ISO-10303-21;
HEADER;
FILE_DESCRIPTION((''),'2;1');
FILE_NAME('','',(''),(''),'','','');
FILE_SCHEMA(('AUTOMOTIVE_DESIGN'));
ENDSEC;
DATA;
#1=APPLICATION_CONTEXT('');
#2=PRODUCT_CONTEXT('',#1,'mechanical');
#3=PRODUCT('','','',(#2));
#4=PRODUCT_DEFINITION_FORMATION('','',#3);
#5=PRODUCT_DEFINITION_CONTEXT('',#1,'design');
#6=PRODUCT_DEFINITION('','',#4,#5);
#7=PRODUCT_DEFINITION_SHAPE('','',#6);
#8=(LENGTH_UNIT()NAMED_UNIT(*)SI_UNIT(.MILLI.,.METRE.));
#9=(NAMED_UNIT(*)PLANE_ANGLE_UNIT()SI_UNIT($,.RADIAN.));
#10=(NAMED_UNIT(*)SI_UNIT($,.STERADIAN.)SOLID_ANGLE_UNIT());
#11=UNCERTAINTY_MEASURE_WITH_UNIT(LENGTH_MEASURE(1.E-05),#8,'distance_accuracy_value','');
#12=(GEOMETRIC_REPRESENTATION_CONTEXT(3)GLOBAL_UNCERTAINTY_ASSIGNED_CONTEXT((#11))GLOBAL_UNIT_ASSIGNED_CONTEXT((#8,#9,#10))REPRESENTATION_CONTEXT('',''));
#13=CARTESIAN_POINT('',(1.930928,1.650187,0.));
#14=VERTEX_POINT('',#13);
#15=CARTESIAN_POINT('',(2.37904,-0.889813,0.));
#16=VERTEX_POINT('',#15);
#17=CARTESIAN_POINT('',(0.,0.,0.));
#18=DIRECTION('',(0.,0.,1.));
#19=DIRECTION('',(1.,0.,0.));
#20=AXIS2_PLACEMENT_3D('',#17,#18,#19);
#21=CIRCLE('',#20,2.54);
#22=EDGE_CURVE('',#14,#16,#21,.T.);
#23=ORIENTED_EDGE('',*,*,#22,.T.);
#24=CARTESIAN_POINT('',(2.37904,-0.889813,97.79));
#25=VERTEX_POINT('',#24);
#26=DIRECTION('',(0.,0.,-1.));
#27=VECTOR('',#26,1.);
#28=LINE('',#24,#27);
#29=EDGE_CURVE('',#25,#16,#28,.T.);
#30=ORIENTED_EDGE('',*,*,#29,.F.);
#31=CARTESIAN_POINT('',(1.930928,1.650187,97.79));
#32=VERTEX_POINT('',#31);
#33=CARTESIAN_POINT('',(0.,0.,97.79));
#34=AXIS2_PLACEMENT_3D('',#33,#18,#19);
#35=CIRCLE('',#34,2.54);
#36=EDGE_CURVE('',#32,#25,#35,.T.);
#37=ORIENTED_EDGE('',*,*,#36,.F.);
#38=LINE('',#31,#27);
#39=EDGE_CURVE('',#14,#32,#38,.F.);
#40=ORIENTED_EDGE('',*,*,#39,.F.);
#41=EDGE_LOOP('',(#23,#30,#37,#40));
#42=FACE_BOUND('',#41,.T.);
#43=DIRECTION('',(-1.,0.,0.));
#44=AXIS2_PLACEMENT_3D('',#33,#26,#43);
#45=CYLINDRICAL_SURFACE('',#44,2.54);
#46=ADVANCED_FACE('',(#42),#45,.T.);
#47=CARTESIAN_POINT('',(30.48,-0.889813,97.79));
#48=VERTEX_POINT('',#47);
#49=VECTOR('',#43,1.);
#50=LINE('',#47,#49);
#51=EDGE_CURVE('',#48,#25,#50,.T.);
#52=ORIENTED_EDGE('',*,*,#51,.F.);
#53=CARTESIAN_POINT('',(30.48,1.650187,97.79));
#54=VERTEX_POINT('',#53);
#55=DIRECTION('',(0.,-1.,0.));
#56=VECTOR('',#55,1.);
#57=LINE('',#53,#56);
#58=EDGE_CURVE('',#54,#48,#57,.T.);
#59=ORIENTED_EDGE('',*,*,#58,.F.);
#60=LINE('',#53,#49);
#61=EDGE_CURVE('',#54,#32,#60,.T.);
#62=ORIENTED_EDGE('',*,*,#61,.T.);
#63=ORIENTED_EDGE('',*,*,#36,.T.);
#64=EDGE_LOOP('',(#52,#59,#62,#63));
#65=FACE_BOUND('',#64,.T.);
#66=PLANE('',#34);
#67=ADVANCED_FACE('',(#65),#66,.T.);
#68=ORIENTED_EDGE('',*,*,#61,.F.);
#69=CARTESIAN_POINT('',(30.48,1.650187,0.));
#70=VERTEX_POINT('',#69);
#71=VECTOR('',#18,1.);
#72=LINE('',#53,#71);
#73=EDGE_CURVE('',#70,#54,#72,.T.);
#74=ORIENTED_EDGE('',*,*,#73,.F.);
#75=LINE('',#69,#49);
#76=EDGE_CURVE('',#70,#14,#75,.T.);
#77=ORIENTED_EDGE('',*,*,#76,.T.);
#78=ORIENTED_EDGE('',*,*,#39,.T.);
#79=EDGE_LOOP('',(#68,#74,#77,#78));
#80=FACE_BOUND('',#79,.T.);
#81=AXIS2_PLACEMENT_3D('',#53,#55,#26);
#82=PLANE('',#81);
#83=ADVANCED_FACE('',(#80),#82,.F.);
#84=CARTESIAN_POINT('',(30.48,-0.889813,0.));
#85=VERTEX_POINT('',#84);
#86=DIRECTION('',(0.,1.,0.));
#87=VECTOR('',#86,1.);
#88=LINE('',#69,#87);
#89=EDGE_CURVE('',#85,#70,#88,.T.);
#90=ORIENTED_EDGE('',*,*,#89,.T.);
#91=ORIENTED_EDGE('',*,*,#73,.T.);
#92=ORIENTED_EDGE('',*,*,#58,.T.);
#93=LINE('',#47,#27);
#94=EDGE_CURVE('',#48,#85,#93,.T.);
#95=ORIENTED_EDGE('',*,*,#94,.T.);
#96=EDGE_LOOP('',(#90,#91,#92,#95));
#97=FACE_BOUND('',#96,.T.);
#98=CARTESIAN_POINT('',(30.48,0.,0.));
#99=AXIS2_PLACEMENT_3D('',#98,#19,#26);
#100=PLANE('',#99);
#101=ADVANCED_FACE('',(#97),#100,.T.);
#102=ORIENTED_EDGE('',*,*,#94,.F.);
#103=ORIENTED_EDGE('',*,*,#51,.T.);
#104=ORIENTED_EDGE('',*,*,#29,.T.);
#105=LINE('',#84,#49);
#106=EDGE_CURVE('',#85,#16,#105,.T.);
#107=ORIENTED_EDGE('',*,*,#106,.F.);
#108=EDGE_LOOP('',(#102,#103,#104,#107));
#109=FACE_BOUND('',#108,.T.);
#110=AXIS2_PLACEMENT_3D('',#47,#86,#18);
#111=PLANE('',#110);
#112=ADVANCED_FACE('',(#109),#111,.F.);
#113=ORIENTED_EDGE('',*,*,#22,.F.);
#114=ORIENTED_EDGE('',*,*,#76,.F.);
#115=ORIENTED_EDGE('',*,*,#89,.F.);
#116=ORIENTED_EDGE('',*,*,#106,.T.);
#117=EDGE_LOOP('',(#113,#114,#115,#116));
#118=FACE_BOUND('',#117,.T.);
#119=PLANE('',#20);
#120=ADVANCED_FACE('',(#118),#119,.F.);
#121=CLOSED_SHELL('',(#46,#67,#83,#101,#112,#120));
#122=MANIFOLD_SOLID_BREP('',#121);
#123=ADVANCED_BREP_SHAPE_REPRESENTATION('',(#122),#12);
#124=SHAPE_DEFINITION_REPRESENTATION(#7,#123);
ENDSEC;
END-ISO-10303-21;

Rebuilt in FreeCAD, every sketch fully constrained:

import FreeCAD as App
import Part
import Sketcher
from FreeCAD import Vector
Q = App.Units.Quantity

doc = App.newDocument("Part")
params = doc.addObject("Spreadsheet::Sheet", "Params")
for row, (alias, value) in enumerate([
    ("sketch1_diameter", "0.2 in"),
    ("pad1_length", "3.85 in"),
    ("sketch2_width", "0.1 in"),
    ("sketch2_height", "3.85 in"),
    ("pad2_length", "1.2 in"),
], start=1):
    params.set(f"A{row}", alias)
    params.set(f"B{row}", "=" + value)
    params.setAlias(f"B{row}", alias)

body = doc.addObject("PartDesign::Body", "Body")

sketch1 = body.newObject("Sketcher::SketchObject", "Sketch")
sketch1.AttachmentSupport = (doc.getObject("XY_Plane"), [""])
sketch1.MapMode = "FlatFace"
sketch1.addGeometry(Part.Circle(Vector(0, 0, 0), Vector(0, 0, 1), 2.54), False)
sketch1.addConstraint(Sketcher.Constraint("Coincident", 0, 3, -1, 1))
sketch1.addConstraint(Sketcher.Constraint("Diameter", 0, Q("0.2 in")))
sketch1.setExpression("Constraints[1]", "Params.sketch1_diameter")
pad1 = body.newObject("PartDesign::Pad", "Pad")
pad1.Profile = sketch1
pad1.setExpression("Length", "Params.pad1_length")

sketch2 = body.newObject("Sketcher::SketchObject", "Sketch001")
sketch2.AttachmentSupport = (doc.getObject("YZ_Plane"), [""])
sketch2.MapMode = "FlatFace"
sketch2.addGeometry(Part.LineSegment(Vector(1.650187, 97.79, 0), Vector(-0.889813, 97.79, 0)), False)
sketch2.addGeometry(Part.LineSegment(Vector(-0.889813, 97.79, 0), Vector(-0.889813, 0, 0)), False)
sketch2.addGeometry(Part.LineSegment(Vector(-0.889813, 0, 0), Vector(1.650187, 0, 0)), False)
sketch2.addGeometry(Part.LineSegment(Vector(1.650187, 0, 0), Vector(1.650187, 97.79, 0)), False)
sketch2.addConstraint(Sketcher.Constraint("Coincident", 0, 2, 1, 1))
sketch2.addConstraint(Sketcher.Constraint("Coincident", 1, 2, 2, 1))
sketch2.addConstraint(Sketcher.Constraint("Coincident", 2, 2, 3, 1))
sketch2.addConstraint(Sketcher.Constraint("Coincident", 3, 2, 0, 1))
sketch2.addConstraint(Sketcher.Constraint("Horizontal", 0))
sketch2.addConstraint(Sketcher.Constraint("Vertical", 1))
sketch2.addConstraint(Sketcher.Constraint("Horizontal", 2))
sketch2.addConstraint(Sketcher.Constraint("Vertical", 3))
sketch2.addConstraint(Sketcher.Constraint("PointOnObject", 1, 2, -1))
sketch2.addConstraint(Sketcher.Constraint("DistanceX", 0, 2, 0, 1, Q("0.1 in")))
sketch2.addConstraint(Sketcher.Constraint("DistanceY", 1, 2, 1, 1, Q("3.85 in")))
sketch2.addConstraint(Sketcher.Constraint("DistanceX", 0, 2, -1, 1, Q("0.889813 mm")))
sketch2.setExpression("Constraints[9]", "Params.sketch2_width")
sketch2.setExpression("Constraints[10]", "Params.sketch2_height")
pad2 = body.newObject("PartDesign::Pad", "Pad001")
pad2.Profile = sketch2
pad2.setExpression("Length", "Params.pad2_length")

doc.recompute()
